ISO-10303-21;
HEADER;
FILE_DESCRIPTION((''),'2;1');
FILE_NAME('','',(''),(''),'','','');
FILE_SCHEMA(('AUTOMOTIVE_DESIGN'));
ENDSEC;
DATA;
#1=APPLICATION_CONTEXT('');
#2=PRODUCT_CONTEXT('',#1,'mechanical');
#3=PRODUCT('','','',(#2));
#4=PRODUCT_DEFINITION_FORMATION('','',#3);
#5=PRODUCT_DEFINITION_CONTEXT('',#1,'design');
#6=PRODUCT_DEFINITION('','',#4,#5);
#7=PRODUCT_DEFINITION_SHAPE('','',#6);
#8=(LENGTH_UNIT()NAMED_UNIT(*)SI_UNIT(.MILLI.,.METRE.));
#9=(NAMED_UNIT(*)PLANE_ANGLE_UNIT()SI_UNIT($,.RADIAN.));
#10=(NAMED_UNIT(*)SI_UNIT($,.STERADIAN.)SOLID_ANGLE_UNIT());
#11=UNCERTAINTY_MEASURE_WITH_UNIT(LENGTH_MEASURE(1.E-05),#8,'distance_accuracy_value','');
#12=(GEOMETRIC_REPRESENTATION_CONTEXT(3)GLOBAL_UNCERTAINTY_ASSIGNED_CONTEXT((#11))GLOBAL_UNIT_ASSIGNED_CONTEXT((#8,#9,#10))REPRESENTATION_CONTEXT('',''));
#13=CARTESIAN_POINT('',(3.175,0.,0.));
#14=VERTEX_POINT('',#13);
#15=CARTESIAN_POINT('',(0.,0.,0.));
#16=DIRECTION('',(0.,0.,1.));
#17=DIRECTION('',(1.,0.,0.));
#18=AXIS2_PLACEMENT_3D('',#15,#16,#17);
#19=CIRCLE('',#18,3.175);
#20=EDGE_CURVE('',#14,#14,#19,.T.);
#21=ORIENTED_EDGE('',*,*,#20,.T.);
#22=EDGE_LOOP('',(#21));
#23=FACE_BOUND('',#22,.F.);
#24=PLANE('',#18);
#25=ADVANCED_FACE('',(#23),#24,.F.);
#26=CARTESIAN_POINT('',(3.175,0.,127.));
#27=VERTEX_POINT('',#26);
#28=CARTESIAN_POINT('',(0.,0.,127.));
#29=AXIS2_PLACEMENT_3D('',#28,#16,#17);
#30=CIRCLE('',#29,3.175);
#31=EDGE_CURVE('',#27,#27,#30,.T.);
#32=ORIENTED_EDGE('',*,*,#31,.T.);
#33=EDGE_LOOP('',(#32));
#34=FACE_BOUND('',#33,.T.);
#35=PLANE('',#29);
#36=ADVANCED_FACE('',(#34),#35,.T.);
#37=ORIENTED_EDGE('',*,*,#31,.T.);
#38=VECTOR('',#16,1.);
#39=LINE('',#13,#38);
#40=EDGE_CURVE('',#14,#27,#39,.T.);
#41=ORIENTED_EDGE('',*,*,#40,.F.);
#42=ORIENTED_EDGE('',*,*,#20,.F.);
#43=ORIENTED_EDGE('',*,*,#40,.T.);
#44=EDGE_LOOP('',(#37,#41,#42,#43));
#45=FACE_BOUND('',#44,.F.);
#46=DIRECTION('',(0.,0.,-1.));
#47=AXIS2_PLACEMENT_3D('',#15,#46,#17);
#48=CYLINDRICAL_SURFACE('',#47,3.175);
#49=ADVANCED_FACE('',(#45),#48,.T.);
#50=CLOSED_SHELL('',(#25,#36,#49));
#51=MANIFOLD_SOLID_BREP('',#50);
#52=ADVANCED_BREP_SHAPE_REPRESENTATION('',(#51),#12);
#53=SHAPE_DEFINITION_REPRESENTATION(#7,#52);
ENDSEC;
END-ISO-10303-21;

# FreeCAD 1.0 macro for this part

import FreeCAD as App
import Part
import Sketcher

V = App.Vector
Q = App.Units.Quantity

doc = App.newDocument("Part")
body = doc.addObject("PartDesign::Body", "Body")

# Sketch on XY plane
sketch1 = body.newObject("Sketcher::SketchObject", "Sketch")
sketch1.AttachmentSupport = (doc.getObject("XY_Plane"), [""])
sketch1.MapMode = "FlatFace"
sketch1.addGeometry(Part.Circle(V(0, 0, 0), V(0, 0, 1), 3.2), False)
sketch1.addConstraint(Sketcher.Constraint("Coincident", 0, 3, -1, 1))
sketch1.addConstraint(Sketcher.Constraint("Diameter", 0, Q("0.25 in")))
pad1 = body.newObject("PartDesign::Pad", "Pad")
pad1.Profile = sketch1
pad1.Length = Q("5 in")

doc.recompute()
